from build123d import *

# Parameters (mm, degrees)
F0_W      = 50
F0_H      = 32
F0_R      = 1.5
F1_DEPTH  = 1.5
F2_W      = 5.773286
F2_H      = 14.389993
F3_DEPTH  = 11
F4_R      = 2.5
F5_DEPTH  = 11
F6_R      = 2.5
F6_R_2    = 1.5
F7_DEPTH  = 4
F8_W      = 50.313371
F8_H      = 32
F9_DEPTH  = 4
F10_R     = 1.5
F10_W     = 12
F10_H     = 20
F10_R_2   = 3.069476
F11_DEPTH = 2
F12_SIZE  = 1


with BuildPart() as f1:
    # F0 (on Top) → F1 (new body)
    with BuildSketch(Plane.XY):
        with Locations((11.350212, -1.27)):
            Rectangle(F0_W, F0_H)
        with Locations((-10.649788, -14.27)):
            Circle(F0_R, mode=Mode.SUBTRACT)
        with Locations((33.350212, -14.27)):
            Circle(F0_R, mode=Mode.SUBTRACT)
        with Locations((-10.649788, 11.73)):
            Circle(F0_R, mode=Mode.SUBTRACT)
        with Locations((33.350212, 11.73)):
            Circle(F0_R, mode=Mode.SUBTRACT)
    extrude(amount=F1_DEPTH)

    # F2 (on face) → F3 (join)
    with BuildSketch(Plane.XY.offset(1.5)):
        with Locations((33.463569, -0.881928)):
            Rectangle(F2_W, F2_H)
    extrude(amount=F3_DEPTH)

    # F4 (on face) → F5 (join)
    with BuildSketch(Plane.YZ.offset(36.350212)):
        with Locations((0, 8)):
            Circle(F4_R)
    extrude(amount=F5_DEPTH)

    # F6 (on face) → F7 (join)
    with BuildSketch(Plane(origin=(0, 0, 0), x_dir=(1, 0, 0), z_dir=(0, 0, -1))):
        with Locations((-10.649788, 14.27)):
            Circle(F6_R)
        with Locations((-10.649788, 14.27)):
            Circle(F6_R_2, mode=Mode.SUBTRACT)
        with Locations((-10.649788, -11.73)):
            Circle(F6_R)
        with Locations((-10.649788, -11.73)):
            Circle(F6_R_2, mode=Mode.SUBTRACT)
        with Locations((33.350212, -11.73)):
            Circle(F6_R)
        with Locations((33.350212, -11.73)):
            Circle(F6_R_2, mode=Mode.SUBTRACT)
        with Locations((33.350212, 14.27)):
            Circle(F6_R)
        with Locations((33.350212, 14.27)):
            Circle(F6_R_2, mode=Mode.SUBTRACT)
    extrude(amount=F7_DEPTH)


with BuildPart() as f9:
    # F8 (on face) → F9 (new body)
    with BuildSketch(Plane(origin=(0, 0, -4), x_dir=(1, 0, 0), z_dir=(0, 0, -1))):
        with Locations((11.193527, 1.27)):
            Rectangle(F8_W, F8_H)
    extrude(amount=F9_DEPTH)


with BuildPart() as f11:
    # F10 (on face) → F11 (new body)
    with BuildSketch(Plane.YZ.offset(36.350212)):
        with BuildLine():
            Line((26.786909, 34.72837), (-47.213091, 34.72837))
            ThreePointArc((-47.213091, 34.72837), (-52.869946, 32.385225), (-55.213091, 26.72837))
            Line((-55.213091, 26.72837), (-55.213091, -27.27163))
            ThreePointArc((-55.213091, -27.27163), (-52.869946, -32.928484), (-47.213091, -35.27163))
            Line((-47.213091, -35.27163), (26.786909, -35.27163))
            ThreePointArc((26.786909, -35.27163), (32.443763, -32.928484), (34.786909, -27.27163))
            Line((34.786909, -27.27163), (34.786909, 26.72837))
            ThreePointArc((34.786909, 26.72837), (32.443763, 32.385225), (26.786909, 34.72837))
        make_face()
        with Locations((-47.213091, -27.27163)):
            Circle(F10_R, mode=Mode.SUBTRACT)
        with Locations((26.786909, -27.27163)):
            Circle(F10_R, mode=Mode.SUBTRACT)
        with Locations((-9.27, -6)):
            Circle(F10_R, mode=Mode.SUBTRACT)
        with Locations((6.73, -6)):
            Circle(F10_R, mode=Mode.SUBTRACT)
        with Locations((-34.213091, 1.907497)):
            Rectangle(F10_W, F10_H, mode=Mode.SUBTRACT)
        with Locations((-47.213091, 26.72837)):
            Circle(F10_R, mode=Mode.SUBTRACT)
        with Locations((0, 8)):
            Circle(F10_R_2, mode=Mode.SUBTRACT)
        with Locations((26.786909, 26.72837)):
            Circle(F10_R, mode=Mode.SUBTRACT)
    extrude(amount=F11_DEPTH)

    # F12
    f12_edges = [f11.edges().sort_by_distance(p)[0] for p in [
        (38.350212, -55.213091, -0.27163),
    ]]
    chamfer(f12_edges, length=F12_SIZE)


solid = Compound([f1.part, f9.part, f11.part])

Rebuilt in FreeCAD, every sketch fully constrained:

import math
import FreeCAD as App
import Part
import Sketcher


def edges_at(feature, points):
    """Names of the edges that pass closest to the given points."""
    edges = feature.Shape.Edges
    near = lambda p: min(range(len(edges)), key=lambda i: edges[i].distToShape(Part.Vertex(*p))[0])
    return sorted({f"Edge{near(p) + 1}" for p in points})

doc = App.newDocument("Part")
body = doc.addObject("PartDesign::Body", "Body")

# Sketch on XY plane
sketch1 = body.newObject("Sketcher::SketchObject", "Sketch")
sketch1.AttachmentSupport = (doc.getObject("XY_Plane"), [""])
sketch1.MapMode = "FlatFace"
sketch1.addGeometry(Part.LineSegment(App.Vector(-13.649788, 14.73, 0), App.Vector(-13.649788, -17.27, 0)), False)
sketch1.addGeometry(Part.LineSegment(App.Vector(-13.649788, -17.27, 0), App.Vector(36.350212, -17.27, 0)), False)
sketch1.addGeometry(Part.LineSegment(App.Vector(36.350212, -17.27, 0), App.Vector(36.350212, 14.73, 0)), False)
sketch1.addGeometry(Part.LineSegment(App.Vector(36.350212, 14.73, 0), App.Vector(-13.649788, 14.73, 0)), False)
sketch1.addGeometry(Part.Circle(App.Vector(-10.649788, -14.27, 0), App.Vector(0, 0, 1), 1.5), False)
sketch1.addGeometry(Part.Circle(App.Vector(33.350212, -14.27, 0), App.Vector(0, 0, 1), 1.5), False)
sketch1.addGeometry(Part.Circle(App.Vector(-10.649788, 11.73, 0), App.Vector(0, 0, 1), 1.5), False)
sketch1.addGeometry(Part.Circle(App.Vector(33.350212, 11.73, 0), App.Vector(0, 0, 1), 1.5), False)
sketch1.addConstraint(Sketcher.Constraint("Coincident", 0, 2, 1, 1))
sketch1.addConstraint(Sketcher.Constraint("Coincident", 1, 2, 2, 1))
sketch1.addConstraint(Sketcher.Constraint("Coincident", 2, 2, 3, 1))
sketch1.addConstraint(Sketcher.Constraint("Coincident", 3, 2, 0, 1))
sketch1.addConstraint(Sketcher.Constraint("Vertical", 0))
sketch1.addConstraint(Sketcher.Constraint("Horizontal", 1))
sketch1.addConstraint(Sketcher.Constraint("Vertical", 2))
sketch1.addConstraint(Sketcher.Constraint("Horizontal", 3))
sketch1.addConstraint(Sketcher.Constraint("Equal", 4, 5))
sketch1.addConstraint(Sketcher.Constraint("Equal", 5, 6))
sketch1.addConstraint(Sketcher.Constraint("Equal", 6, 7))
sketch1.addConstraint(Sketcher.Constraint("Horizontal", 4, 3, 5, 3))
sketch1.addConstraint(Sketcher.Constraint("Horizontal", 6, 3, 7, 3))
sketch1.addConstraint(Sketcher.Constraint("Vertical", 4, 3, 6, 3))
sketch1.addConstraint(Sketcher.Constraint("Vertical", 5, 3, 7, 3))
sketch1.addConstraint(Sketcher.Constraint("Diameter", 4, 3.0))
sketch1.addConstraint(Sketcher.Constraint("DistanceX", 1, 1, 1, 2, 50.0))
sketch1.addConstraint(Sketcher.Constraint("DistanceY", 0, 2, 0, 1, 32.0))
sketch1.addConstraint(Sketcher.Constraint("DistanceX", 4, 3, 5, 3, 44.0))
sketch1.addConstraint(Sketcher.Constraint("DistanceY", 4, 3, 6, 3, 26.0))
sketch1.addConstraint(Sketcher.Constraint("DistanceX", 0, 2, 4, 3, 3.0))
sketch1.addConstraint(Sketcher.Constraint("DistanceY", 0, 2, 4, 3, 3.0))
sketch1.addConstraint(Sketcher.Constraint("DistanceY", 4, 3, -1, 1, 14.27))
sketch1.addConstraint(Sketcher.Constraint("DistanceX", 4, 3, -1, 1, 10.649788))
pad1 = body.newObject("PartDesign::Pad", "Pad")
pad1.Profile = sketch1
pad1.Length = 1.5

# Sketch on XY plane
sketch2 = body.newObject("Sketcher::SketchObject", "Sketch001")
sketch2.AttachmentSupport = (doc.getObject("XY_Plane"), [""])
sketch2.MapMode = "FlatFace"
sketch2.AttachmentOffset = App.Placement(App.Vector(0, 0, 1.5), App.Rotation())
sketch2.addGeometry(Part.LineSegment(App.Vector(30.576926, 6.313068, 0), App.Vector(30.576926, -8.076925, 0)), False)
sketch2.addGeometry(Part.LineSegment(App.Vector(30.576926, -8.076925, 0), App.Vector(36.350212, -8.076925, 0)), False)
sketch2.addGeometry(Part.LineSegment(App.Vector(36.350212, -8.076925, 0), App.Vector(36.350212, 6.313068, 0)), False)
sketch2.addGeometry(Part.LineSegment(App.Vector(36.350212, 6.313068, 0), App.Vector(30.576926, 6.313068, 0)), False)
sketch2.addConstraint(Sketcher.Constraint("Coincident", 0, 2, 1, 1))
sketch2.addConstraint(Sketcher.Constraint("Coincident", 1, 2, 2, 1))
sketch2.addConstraint(Sketcher.Constraint("Coincident", 2, 2, 3, 1))
sketch2.addConstraint(Sketcher.Constraint("Coincident", 3, 2, 0, 1))
sketch2.addConstraint(Sketcher.Constraint("Vertical", 0))
sketch2.addConstraint(Sketcher.Constraint("Horizontal", 1))
sketch2.addConstraint(Sketcher.Constraint("Vertical", 2))
sketch2.addConstraint(Sketcher.Constraint("Horizontal", 3))
sketch2.addConstraint(Sketcher.Constraint("DistanceX", 1, 1, 1, 2, 5.773286))
sketch2.addConstraint(Sketcher.Constraint("DistanceY", 0, 2, 0, 1, 14.389993))
sketch2.addConstraint(Sketcher.Constraint("DistanceY", -1, 1, 2, 2, 6.313068))
sketch2.addConstraint(Sketcher.Constraint("DistanceX", -1, 1, 0, 2, 30.576926))
pad2 = body.newObject("PartDesign::Pad", "Pad001")
pad2.Profile = sketch2
pad2.Length = 11

# Sketch on YZ plane
sketch3 = body.newObject("Sketcher::SketchObject", "Sketch002")
sketch3.AttachmentSupport = (doc.getObject("YZ_Plane"), [""])
sketch3.MapMode = "FlatFace"
sketch3.AttachmentOffset = App.Placement(App.Vector(0, 0, 36.350212), App.Rotation())
sketch3.addGeometry(Part.Circle(App.Vector(0, 8, 0), App.Vector(0, 0, 1), 2.5), False)
sketch3.addConstraint(Sketcher.Constraint("PointOnObject", 0, 3, -2))
sketch3.addConstraint(Sketcher.Constraint("Diameter", 0, 5.0))
sketch3.addConstraint(Sketcher.Constraint("DistanceY", -1, 1, 0, 3, 8.0))
pad3 = body.newObject("PartDesign::Pad", "Pad002")
pad3.Profile = sketch3
pad3.Length = 11

# Sketch on XY plane
sketch4 = body.newObject("Sketcher::SketchObject", "Sketch003")
sketch4.AttachmentSupport = (doc.getObject("XY_Plane"), [""])
sketch4.MapMode = "FlatFace"
sketch4.addGeometry(Part.Circle(App.Vector(-10.649788, -14.27, 0), App.Vector(0, 0, 1), 2.5), False)
sketch4.addGeometry(Part.Circle(App.Vector(-10.649788, -14.27, 0), App.Vector(0, 0, 1), 1.5), False)
sketch4.addGeometry(Part.Circle(App.Vector(-10.649788, 11.73, 0), App.Vector(0, 0, 1), 2.5), False)
sketch4.addGeometry(Part.Circle(App.Vector(-10.649788, 11.73, 0), App.Vector(0, 0, 1), 1.5), False)
sketch4.addGeometry(Part.Circle(App.Vector(33.350212, 11.73, 0), App.Vector(0, 0, 1), 2.5), False)
sketch4.addGeometry(Part.Circle(App.Vector(33.350212, 11.73, 0), App.Vector(0, 0, 1), 1.5), False)
sketch4.addGeometry(Part.Circle(App.Vector(33.350212, -14.27, 0), App.Vector(0, 0, 1), 2.5), False)
sketch4.addGeometry(Part.Circle(App.Vector(33.350212, -14.27, 0), App.Vector(0, 0, 1), 1.5), False)
sketch4.addConstraint(Sketcher.Constraint("Coincident", 1, 3, 0, 3))
sketch4.addConstraint(Sketcher.Constraint("Coincident", 3, 3, 2, 3))
sketch4.addConstraint(Sketcher.Constraint("Coincident", 5, 3, 4, 3))
sketch4.addConstraint(Sketcher.Constraint("Coincident", 7, 3, 6, 3))
sketch4.addConstraint(Sketcher.Constraint("Equal", 0, 2))
sketch4.addConstraint(Sketcher.Constraint("Equal", 1, 3))
sketch4.addConstraint(Sketcher.Constraint("Equal", 2, 4))
sketch4.addConstraint(Sketcher.Constraint("Equal", 3, 5))
sketch4.addConstraint(Sketcher.Constraint("Equal", 4, 6))
sketch4.addConstraint(Sketcher.Constraint("Equal", 5, 7))
sketch4.addConstraint(Sketcher.Constraint("Horizontal", 3, 3, 4, 3))
sketch4.addConstraint(Sketcher.Constraint("Horizontal", 1, 3, 6, 3))
sketch4.addConstraint(Sketcher.Constraint("Vertical", 1, 3, 2, 3))
sketch4.addConstraint(Sketcher.Constraint("Vertical", 5, 3, 6, 3))
sketch4.addConstraint(Sketcher.Constraint("Diameter", 0, 5.0))
sketch4.addConstraint(Sketcher.Constraint("Diameter", 1, 3.0))
sketch4.addConstraint(Sketcher.Constraint("DistanceY", 0, 3, 2, 3, 26.0))
sketch4.addConstraint(Sketcher.Constraint("DistanceX", 2, 3, 4, 3, 44.0))
sketch4.addConstraint(Sketcher.Constraint("DistanceY", 0, 3, -1, 1, 14.27))
sketch4.addConstraint(Sketcher.Constraint("DistanceX", 0, 3, -1, 1, 10.649788))
pad4 = body.newObject("PartDesign::Pad", "Pad003")
pad4.Profile = sketch4
pad4.Length = 4
pad4.Reversed = True
body2 = doc.addObject("PartDesign::Body", "Body001")

# Sketch on XY plane
sketch5 = body2.newObject("Sketcher::SketchObject", "Sketch004")
sketch5.AttachmentSupport = (doc.getObject("XY_Plane001"), [""])
sketch5.MapMode = "FlatFace"
sketch5.AttachmentOffset = App.Placement(App.Vector(0, 0, -4), App.Rotation())
sketch5.addGeometry(Part.LineSegment(App.Vector(-13.963159, -17.27, 0), App.Vector(-13.963159, 14.73, 0)), False)
sketch5.addGeometry(Part.LineSegment(App.Vector(-13.963159, 14.73, 0), App.Vector(36.350212, 14.73, 0)), False)
sketch5.addGeometry(Part.LineSegment(App.Vector(36.350212, 14.73, 0), App.Vector(36.350212, -17.27, 0)), False)
sketch5.addGeometry(Part.LineSegment(App.Vector(36.350212, -17.27, 0), App.Vector(-13.963159, -17.27, 0)), False)
sketch5.addConstraint(Sketcher.Constraint("Coincident", 0, 2, 1, 1))
sketch5.addConstraint(Sketcher.Constraint("Coincident", 1, 2, 2, 1))
sketch5.addConstraint(Sketcher.Constraint("Coincident", 2, 2, 3, 1))
sketch5.addConstraint(Sketcher.Constraint("Coincident", 3, 2, 0, 1))
sketch5.addConstraint(Sketcher.Constraint("Vertical", 0))
sketch5.addConstraint(Sketcher.Constraint("Horizontal", 1))
sketch5.addConstraint(Sketcher.Constraint("Vertical", 2))
sketch5.addConstraint(Sketcher.Constraint("Horizontal", 3))
sketch5.addConstraint(Sketcher.Constraint("DistanceY", 0, 1, 0, 2, 32.0))
sketch5.addConstraint(Sketcher.Constraint("DistanceY", -1, 1, 0, 2, 14.73))
sketch5.addConstraint(Sketcher.Constraint("DistanceX", 1, 1, 1, 2, 50.313371))
sketch5.addConstraint(Sketcher.Constraint("DistanceX", 0, 2, -1, 1, 13.963159))
pad5 = body2.newObject("PartDesign::Pad", "Pad004")
pad5.Profile = sketch5
pad5.Length = 4
pad5.Reversed = True
body3 = doc.addObject("PartDesign::Body", "Body002")

# Sketch on YZ plane
sketch6 = body3.newObject("Sketcher::SketchObject", "Sketch005")
sketch6.AttachmentSupport = (doc.getObject("YZ_Plane002"), [""])
sketch6.MapMode = "FlatFace"
sketch6.AttachmentOffset = App.Placement(App.Vector(0, 0, 36.350212), App.Rotation())
sketch6.addGeometry(Part.LineSegment(App.Vector(26.786909, 34.72837, 0), App.Vector(-47.213091, 34.72837, 0)), False)
sketch6.addGeometry(Part.ArcOfCircle(Part.Circle(App.Vector(-47.213094, 26.728373, 0), App.Vector(0, 0, 1), 7.999997), math.radians(89.999982), math.radians(180.000018)), False)
sketch6.addGeometry(Part.LineSegment(App.Vector(-55.213091, 26.72837, 0), App.Vector(-55.213091, -27.27163, 0)), False)
sketch6.addGeometry(Part.ArcOfCircle(Part.Circle(App.Vector(-47.213092, -27.271631, 0), App.Vector(0, 0, 1), 7.999999), math.radians(179.999994), math.radians(270.000006)), False)
sketch6.addGeometry(Part.LineSegment(App.Vector(-47.213091, -35.27163, 0), App.Vector(26.786909, -35.27163, 0)), False)
sketch6.addGeometry(Part.ArcOfCircle(Part.Circle(App.Vector(26.786908, -27.271629, 0), App.Vector(0, 0, 1), 8.000001), math.radians(-89.999994), math.radians(-0.000006)), False)
sketch6.addGeometry(Part.LineSegment(App.Vector(34.786909, -27.27163, 0), App.Vector(34.786909, 26.72837, 0)), False)
sketch6.addGeometry(Part.ArcOfCircle(Part.Circle(App.Vector(26.78691, 26.728371, 0), App.Vector(0, 0, 1), 7.999999), math.radians(-0.000006), math.radians(90.000006)), False)
sketch6.addGeometry(Part.Circle(App.Vector(-47.213091, -27.27163, 0), App.Vector(0, 0, 1), 1.5), False)
sketch6.addGeometry(Part.Circle(App.Vector(26.786909, -27.27163, 0), App.Vector(0, 0, 1), 1.5), False)
sketch6.addGeometry(Part.Circle(App.Vector(-9.27, -6, 0), App.Vector(0, 0, 1), 1.5), False)
sketch6.addGeometry(Part.Circle(App.Vector(6.73, -6, 0), App.Vector(0, 0, 1), 1.5), False)
sketch6.addGeometry(Part.LineSegment(App.Vector(-28.213091, -8.092503, 0), App.Vector(-40.213091, -8.092503, 0)), False)
sketch6.addGeometry(Part.LineSegment(App.Vector(-40.213091, -8.092503, 0), App.Vector(-40.213091, 11.907497, 0)), False)
sketch6.addGeometry(Part.LineSegment(App.Vector(-40.213091, 11.907497, 0), App.Vector(-28.213091, 11.907497, 0)), False)
sketch6.addGeometry(Part.LineSegment(App.Vector(-28.213091, 11.907497, 0), App.Vector(-28.213091, -8.092503, 0)), False)
sketch6.addGeometry(Part.Circle(App.Vector(-47.213091, 26.72837, 0), App.Vector(0, 0, 1), 1.5), False)
sketch6.addGeometry(Part.Circle(App.Vector(0, 8, 0), App.Vector(0, 0, 1), 3.069476), False)
sketch6.addGeometry(Part.Circle(App.Vector(26.786909, 26.72837, 0), App.Vector(0, 0, 1), 1.5), False)
sketch6.addConstraint(Sketcher.Constraint("Tangent", 0, 2, 1, 1))
sketch6.addConstraint(Sketcher.Constraint("Tangent", 1, 2, 2, 1))
sketch6.addConstraint(Sketcher.Constraint("Tangent", 2, 2, 3, 1))
sketch6.addConstraint(Sketcher.Constraint("Tangent", 3, 2, 4, 1))
sketch6.addConstraint(Sketcher.Constraint("Tangent", 4, 2, 5, 1))
sketch6.addConstraint(Sketcher.Constraint("Tangent", 5, 2, 6, 1))
sketch6.addConstraint(Sketcher.Constraint("Tangent", 6, 2, 7, 1))
sketch6.addConstraint(Sketcher.Constraint("Tangent", 7, 2, 0, 1))
sketch6.addConstraint(Sketcher.Constraint("Coincident", 12, 2, 13, 1))
sketch6.addConstraint(Sketcher.Constraint("Coincident", 13, 2, 14, 1))
sketch6.addConstraint(Sketcher.Constraint("Coincident", 14, 2, 15, 1))
sketch6.addConstraint(Sketcher.Constraint("Coincident", 15, 2, 12, 1))
sketch6.addConstraint(Sketcher.Constraint("Horizontal", 0))
sketch6.addConstraint(Sketcher.Constraint("Vertical", 2))
sketch6.addConstraint(Sketcher.Constraint("Horizontal", 4))
sketch6.addConstraint(Sketcher.Constraint("Vertical", 6))
sketch6.addConstraint(Sketcher.Constraint("Horizontal", 12))
sketch6.addConstraint(Sketcher.Constraint("Vertical", 13))
sketch6.addConstraint(Sketcher.Constraint("Horizontal", 14))
sketch6.addConstraint(Sketcher.Constraint("Vertical", 15))
sketch6.addConstraint(Sketcher.Constraint("Coincident", 8, 3, 3, 3))
sketch6.addConstraint(Sketcher.Constraint("Coincident", 9, 3, 5, 3))
sketch6.addConstraint(Sketcher.Constraint("Coincident", 16, 3, 1, 3))
sketch6.addConstraint(Sketcher.Constraint("Coincident", 18, 3, 7, 3))
sketch6.addConstraint(Sketcher.Constraint("Equal", 1, 3))
sketch6.addConstraint(Sketcher.Constraint("Equal", 3, 5))
sketch6.addConstraint(Sketcher.Constraint("Equal", 5, 7))
sketch6.addConstraint(Sketcher.Constraint("Equal", 8, 9))
sketch6.addConstraint(Sketcher.Constraint("Equal", 9, 10))
sketch6.addConstraint(Sketcher.Constraint("Equal", 10, 11))
sketch6.addConstraint(Sketcher.Constraint("Equal", 11, 16))
sketch6.addConstraint(Sketcher.Constraint("Equal", 16, 18))
sketch6.addConstraint(Sketcher.Constraint("PointOnObject", 17, 3, -2))
sketch6.addConstraint(Sketcher.Constraint("Horizontal", 10, 3, 11, 3))
sketch6.addConstraint(Sketcher.Constraint("Diameter", 8, 3.0))
sketch6.addConstraint(Sketcher.Constraint("Radius", 3, 7.999999))
sketch6.addConstraint(Sketcher.Constraint("DistanceX", 0, 2, 0, 1, 74.0))
sketch6.addConstraint(Sketcher.Constraint("DistanceX", 12, 2, 12, 1, 12.0))
sketch6.addConstraint(Sketcher.Constraint("DistanceY", 2, 2, 2, 1, 54.0))
sketch6.addConstraint(Sketcher.Constraint("DistanceY", 13, 1, 13, 2, 20.0))
sketch6.addConstraint(Sketcher.Constraint("DistanceY", 10, 3, -1, 1, 6.0))
sketch6.addConstraint(Sketcher.Constraint("DistanceY", -1, 1, 17, 3, 8.0))
sketch6.addConstraint(Sketcher.Constraint("DistanceX", 10, 3, 11, 3, 16.0))
sketch6.addConstraint(Sketcher.Constraint("DistanceX", 8, 3, 12, 2, 7.0))
sketch6.addConstraint(Sketcher.Constraint("Diameter", 17, 6.138952))
sketch6.addConstraint(Sketcher.Constraint("DistanceX", 10, 3, -1, 1, 9.27))
sketch6.addConstraint(Sketcher.Constraint("DistanceX", 3, 3, -1, 1, 47.213092))
sketch6.addConstraint(Sketcher.Constraint("DistanceY", 3, 3, -1, 1, 27.271631))
sketch6.addConstraint(Sketcher.Constraint("DistanceY", 12, 2, -1, 1, 8.092503))
pad6 = body3.newObject("PartDesign::Pad", "Pad005")
pad6.Profile = sketch6
pad6.Length = 2
doc.recompute()

chamfer = body3.newObject("PartDesign::Chamfer", "Chamfer")
chamfer.Base = (pad6, edges_at(pad6, [(38.35, -55.213, -0.272)]))
chamfer.Size = 1

doc.recompute()
